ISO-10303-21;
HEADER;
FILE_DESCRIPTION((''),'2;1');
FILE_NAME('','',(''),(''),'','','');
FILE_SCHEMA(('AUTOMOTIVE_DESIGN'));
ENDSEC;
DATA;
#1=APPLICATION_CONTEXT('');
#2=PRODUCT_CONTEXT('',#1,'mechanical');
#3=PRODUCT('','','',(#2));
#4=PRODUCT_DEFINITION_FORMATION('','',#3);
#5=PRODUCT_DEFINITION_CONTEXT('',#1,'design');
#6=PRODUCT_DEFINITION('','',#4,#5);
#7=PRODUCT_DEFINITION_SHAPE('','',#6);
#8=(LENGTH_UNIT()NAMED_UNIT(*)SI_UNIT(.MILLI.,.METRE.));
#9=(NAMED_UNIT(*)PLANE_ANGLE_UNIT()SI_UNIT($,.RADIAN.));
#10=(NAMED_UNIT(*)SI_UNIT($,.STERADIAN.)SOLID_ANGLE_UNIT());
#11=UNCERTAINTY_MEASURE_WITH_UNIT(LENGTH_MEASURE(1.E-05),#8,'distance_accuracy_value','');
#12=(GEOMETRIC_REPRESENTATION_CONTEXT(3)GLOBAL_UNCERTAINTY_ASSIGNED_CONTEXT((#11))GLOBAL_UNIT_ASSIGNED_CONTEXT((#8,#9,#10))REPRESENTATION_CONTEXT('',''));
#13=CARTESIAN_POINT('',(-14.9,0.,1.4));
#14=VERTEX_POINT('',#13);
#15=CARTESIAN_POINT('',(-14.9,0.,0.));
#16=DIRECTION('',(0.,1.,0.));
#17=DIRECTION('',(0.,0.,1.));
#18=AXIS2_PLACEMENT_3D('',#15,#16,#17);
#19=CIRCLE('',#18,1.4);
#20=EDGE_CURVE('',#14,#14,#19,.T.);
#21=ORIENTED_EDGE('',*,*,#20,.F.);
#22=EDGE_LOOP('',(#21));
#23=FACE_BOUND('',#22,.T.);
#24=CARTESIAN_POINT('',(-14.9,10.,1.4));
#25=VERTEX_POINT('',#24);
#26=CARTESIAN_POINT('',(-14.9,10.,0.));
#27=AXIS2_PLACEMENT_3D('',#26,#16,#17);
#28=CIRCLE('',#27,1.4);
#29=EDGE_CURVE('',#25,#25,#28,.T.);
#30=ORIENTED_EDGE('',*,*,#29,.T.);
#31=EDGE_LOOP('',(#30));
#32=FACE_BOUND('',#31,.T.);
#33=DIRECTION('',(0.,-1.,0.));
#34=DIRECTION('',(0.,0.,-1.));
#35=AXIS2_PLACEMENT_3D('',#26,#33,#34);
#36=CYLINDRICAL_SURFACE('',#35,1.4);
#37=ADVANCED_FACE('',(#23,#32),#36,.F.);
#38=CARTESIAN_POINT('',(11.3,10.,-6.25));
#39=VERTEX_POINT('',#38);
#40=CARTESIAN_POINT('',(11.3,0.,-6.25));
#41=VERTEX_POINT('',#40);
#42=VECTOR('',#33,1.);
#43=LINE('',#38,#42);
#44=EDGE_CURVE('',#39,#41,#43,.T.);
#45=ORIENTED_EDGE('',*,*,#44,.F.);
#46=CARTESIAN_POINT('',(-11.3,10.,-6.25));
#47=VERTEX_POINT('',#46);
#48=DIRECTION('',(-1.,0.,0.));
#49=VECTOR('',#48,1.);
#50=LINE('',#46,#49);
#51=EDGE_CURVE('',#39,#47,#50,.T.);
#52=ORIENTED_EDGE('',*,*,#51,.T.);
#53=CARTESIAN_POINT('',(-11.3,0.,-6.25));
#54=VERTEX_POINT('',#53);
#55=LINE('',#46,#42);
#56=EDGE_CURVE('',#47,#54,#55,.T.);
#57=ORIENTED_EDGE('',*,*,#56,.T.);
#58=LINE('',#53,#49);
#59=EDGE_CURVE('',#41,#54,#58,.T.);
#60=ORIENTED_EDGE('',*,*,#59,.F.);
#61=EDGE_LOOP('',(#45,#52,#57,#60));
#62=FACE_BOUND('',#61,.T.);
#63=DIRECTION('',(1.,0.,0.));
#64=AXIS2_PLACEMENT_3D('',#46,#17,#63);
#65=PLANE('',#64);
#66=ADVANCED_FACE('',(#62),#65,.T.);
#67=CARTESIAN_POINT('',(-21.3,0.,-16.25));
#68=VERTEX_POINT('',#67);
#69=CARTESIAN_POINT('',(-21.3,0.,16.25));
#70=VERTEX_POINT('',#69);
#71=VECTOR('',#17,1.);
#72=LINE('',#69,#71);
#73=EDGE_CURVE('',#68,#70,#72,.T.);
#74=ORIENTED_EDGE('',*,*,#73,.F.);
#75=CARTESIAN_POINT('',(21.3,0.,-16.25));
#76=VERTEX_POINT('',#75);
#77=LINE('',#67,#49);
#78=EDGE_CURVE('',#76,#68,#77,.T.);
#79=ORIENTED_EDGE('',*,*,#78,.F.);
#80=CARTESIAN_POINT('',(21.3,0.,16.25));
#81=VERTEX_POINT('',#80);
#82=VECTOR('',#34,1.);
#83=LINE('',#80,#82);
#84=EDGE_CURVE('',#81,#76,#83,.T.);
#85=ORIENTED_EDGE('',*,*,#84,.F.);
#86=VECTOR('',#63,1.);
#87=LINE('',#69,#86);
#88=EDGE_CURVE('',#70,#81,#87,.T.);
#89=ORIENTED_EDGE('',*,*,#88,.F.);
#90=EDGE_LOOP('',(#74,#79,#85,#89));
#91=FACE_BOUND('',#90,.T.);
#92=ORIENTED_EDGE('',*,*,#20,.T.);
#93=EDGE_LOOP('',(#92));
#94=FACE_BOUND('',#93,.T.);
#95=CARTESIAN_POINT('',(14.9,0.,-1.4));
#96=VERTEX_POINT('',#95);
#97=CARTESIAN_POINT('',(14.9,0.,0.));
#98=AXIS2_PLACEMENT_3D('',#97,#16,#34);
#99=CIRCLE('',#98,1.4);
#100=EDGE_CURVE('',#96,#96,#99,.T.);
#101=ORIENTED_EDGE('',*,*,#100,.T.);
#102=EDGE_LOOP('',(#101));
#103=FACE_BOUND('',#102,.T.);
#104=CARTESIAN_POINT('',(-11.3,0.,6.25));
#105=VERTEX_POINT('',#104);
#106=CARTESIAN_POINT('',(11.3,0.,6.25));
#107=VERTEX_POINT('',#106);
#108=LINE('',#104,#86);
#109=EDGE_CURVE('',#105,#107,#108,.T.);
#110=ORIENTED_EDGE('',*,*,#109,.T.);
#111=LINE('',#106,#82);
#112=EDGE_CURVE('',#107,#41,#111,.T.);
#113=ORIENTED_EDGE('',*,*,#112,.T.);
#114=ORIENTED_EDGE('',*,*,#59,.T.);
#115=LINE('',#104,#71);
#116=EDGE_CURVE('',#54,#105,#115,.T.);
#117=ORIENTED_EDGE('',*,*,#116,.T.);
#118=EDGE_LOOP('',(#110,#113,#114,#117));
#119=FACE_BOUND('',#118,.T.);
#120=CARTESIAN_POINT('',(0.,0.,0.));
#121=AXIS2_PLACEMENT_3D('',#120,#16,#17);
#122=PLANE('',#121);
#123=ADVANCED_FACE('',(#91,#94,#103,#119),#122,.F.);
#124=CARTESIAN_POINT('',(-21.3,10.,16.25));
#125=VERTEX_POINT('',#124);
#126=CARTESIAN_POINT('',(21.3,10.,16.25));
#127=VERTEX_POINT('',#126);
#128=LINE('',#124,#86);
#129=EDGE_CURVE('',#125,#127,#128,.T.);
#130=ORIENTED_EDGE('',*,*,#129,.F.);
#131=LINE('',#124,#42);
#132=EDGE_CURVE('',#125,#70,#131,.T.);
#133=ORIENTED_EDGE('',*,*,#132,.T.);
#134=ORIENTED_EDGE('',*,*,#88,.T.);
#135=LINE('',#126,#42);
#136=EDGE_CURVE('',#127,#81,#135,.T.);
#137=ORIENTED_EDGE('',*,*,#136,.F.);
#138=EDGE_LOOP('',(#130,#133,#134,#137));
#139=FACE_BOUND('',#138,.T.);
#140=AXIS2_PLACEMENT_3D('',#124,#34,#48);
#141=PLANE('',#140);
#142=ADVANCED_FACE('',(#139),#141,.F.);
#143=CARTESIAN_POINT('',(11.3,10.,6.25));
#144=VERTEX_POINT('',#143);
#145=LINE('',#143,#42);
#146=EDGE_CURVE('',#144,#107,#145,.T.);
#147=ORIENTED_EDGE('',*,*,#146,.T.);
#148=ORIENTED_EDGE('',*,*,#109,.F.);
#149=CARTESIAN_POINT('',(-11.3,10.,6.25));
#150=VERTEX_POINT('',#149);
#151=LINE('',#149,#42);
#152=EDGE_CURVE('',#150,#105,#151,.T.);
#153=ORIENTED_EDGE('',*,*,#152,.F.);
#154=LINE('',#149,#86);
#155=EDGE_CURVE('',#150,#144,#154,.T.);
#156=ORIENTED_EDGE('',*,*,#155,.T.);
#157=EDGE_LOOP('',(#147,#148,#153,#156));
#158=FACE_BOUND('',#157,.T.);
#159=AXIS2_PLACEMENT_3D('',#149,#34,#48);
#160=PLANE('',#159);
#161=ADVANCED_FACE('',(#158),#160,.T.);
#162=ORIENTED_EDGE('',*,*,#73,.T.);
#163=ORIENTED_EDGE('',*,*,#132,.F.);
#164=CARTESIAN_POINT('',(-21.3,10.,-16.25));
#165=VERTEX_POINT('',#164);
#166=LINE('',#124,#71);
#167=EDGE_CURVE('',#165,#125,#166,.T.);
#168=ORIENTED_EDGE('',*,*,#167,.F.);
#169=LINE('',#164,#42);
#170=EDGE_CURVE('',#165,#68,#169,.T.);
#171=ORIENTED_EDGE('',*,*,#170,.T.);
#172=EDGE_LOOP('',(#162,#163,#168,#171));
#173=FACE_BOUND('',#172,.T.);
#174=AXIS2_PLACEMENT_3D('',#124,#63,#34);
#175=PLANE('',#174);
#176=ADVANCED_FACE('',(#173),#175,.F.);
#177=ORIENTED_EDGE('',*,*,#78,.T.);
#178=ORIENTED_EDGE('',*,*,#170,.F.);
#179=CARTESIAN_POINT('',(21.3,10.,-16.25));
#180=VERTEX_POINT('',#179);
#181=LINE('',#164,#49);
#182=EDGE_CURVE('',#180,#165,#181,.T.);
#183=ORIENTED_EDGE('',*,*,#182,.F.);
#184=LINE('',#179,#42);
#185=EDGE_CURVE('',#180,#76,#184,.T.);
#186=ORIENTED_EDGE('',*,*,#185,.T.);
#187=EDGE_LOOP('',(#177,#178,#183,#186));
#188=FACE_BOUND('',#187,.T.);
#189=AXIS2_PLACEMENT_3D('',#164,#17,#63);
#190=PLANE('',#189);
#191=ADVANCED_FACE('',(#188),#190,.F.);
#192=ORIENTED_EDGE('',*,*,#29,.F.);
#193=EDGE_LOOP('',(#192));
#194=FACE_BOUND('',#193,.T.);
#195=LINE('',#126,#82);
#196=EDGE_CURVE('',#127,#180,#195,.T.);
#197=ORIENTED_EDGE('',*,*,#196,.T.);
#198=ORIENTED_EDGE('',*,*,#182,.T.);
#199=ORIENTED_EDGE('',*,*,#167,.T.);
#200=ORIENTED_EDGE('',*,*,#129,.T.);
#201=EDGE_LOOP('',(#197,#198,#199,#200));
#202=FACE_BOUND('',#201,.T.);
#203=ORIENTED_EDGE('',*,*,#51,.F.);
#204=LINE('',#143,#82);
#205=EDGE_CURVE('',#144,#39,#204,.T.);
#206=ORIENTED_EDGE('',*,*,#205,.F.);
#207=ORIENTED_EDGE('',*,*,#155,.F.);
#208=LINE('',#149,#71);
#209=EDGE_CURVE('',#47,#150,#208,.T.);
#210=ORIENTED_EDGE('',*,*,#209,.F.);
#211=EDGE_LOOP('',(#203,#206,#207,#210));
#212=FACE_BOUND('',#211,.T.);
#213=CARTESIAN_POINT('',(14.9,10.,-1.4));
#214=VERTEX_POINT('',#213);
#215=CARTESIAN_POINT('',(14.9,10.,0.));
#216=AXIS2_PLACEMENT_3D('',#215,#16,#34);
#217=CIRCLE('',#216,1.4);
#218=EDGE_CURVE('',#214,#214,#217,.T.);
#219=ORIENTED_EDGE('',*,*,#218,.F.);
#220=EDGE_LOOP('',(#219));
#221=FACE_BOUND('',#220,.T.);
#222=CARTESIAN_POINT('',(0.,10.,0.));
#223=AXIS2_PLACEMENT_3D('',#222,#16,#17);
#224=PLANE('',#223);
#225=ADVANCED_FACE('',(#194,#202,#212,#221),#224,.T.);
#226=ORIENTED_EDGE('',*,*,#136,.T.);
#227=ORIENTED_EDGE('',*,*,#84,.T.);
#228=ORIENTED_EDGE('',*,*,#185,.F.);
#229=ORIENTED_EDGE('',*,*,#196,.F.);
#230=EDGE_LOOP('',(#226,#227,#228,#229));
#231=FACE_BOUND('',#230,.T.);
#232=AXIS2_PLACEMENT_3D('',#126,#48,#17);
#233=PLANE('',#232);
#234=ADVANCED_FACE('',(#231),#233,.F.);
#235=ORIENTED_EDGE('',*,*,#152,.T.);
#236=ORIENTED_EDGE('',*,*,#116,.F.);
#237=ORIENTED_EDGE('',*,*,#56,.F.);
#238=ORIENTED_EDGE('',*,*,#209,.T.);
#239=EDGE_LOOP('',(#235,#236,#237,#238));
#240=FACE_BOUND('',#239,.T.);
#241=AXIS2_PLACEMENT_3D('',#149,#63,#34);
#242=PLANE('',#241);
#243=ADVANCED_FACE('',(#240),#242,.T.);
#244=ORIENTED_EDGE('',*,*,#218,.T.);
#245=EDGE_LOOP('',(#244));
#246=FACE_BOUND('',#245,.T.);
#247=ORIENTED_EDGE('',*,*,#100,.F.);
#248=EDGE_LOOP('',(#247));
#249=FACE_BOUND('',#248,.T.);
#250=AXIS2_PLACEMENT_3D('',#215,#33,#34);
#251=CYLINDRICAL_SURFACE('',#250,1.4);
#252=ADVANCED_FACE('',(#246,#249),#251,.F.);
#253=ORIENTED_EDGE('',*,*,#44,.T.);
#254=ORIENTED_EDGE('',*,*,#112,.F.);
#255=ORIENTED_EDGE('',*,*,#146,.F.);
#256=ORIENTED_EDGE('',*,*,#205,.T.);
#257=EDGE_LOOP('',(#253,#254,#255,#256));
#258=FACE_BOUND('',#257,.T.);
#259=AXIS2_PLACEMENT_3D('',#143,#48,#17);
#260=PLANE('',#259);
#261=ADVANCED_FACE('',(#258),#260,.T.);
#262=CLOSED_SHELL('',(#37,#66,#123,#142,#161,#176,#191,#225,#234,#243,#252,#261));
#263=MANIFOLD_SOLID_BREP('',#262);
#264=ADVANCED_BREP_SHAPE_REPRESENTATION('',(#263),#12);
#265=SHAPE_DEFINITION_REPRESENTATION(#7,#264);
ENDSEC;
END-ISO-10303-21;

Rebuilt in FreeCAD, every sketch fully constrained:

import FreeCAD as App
import Part
import Sketcher

V = App.Vector

doc = App.newDocument("Part")
body = doc.addObject("PartDesign::Body", "Body")

# Sketch on XZ plane
sketch1 = body.newObject("Sketcher::SketchObject", "Sketch")
sketch1.AttachmentSupport = (doc.getObject("XZ_Plane"), [""])
sketch1.MapMode = "FlatFace"
sketch1.addGeometry(Part.LineSegment(V(-21.3, -16.2, 0), V(-21.3, 16.2, 0)), False)
sketch1.addGeometry(Part.LineSegment(V(-21.3, 16.2, 0), V(21.3, 16.2, 0)), False)
sketch1.addGeometry(Part.LineSegment(V(21.3, 16.2, 0), V(21.3, -16.2, 0)), False)
sketch1.addGeometry(Part.LineSegment(V(21.3, -16.2, 0), V(-21.3, -16.2, 0)), False)
sketch1.addGeometry(Part.Circle(V(-14.9, 0, 0), V(0, 0, 1), 1.4), False)
sketch1.addGeometry(Part.LineSegment(V(11.3, 6.2, 0), V(-11.3, 6.2, 0)), False)
sketch1.addGeometry(Part.LineSegment(V(-11.3, 6.2, 0), V(-11.3, -6.2, 0)), False)
sketch1.addGeometry(Part.LineSegment(V(-11.3, -6.2, 0), V(11.3, -6.2, 0)), False)
sketch1.addGeometry(Part.LineSegment(V(11.3, -6.2, 0), V(11.3, 6.2, 0)), False)
sketch1.addGeometry(Part.Circle(V(14.9, 0, 0), V(0, 0, 1), 1.4), False)
sketch1.addConstraint(Sketcher.Constraint("Coincident", 0, 2, 1, 1))
sketch1.addConstraint(Sketcher.Constraint("Coincident", 1, 2, 2, 1))
sketch1.addConstraint(Sketcher.Constraint("Coincident", 2, 2, 3, 1))
sketch1.addConstraint(Sketcher.Constraint("Coincident", 3, 2, 0, 1))
sketch1.addConstraint(Sketcher.Constraint("Coincident", 5, 2, 6, 1))
sketch1.addConstraint(Sketcher.Constraint("Coincident", 6, 2, 7, 1))
sketch1.addConstraint(Sketcher.Constraint("Coincident", 7, 2, 8, 1))
sketch1.addConstraint(Sketcher.Constraint("Coincident", 8, 2, 5, 1))
sketch1.addConstraint(Sketcher.Constraint("Vertical", 0))
sketch1.addConstraint(Sketcher.Constraint("Horizontal", 1))
sketch1.addConstraint(Sketcher.Constraint("Vertical", 2))
sketch1.addConstraint(Sketcher.Constraint("Horizontal", 3))
sketch1.addConstraint(Sketcher.Constraint("Horizontal", 5))
sketch1.addConstraint(Sketcher.Constraint("Vertical", 6))
sketch1.addConstraint(Sketcher.Constraint("Horizontal", 7))
sketch1.addConstraint(Sketcher.Constraint("Vertical", 8))
sketch1.addConstraint(Sketcher.Constraint("Equal", 4, 9))
sketch1.addConstraint(Sketcher.Constraint("Symmetric", 4, 3, 9, 3, -1, 1))
sketch1.addConstraint(Sketcher.Constraint("Symmetric", 0, 2, 2, 2, -1, 1))
sketch1.addConstraint(Sketcher.Constraint("Symmetric", 5, 2, 7, 2, -1, 1))
sketch1.addConstraint(Sketcher.Constraint("PointOnObject", 4, 3, -1))
sketch1.addConstraint(Sketcher.Constraint("Diameter", 4, 2.8))
sketch1.addConstraint(Sketcher.Constraint("DistanceX", 1, 1, 1, 2, 42.6))
sketch1.addConstraint(Sketcher.Constraint("DistanceX", 5, 2, 5, 1, 22.6))
sketch1.addConstraint(Sketcher.Constraint("DistanceY", 0, 1, 0, 2, 32.5))
sketch1.addConstraint(Sketcher.Constraint("DistanceY", 6, 2, 6, 1, 12.5))
sketch1.addConstraint(Sketcher.Constraint("DistanceX", 4, 3, -1, 1, 14.9))
pad1 = body.newObject("PartDesign::Pad", "Pad")
pad1.Profile = sketch1
pad1.Length = 10
pad1.Reversed = True

doc.recompute()
